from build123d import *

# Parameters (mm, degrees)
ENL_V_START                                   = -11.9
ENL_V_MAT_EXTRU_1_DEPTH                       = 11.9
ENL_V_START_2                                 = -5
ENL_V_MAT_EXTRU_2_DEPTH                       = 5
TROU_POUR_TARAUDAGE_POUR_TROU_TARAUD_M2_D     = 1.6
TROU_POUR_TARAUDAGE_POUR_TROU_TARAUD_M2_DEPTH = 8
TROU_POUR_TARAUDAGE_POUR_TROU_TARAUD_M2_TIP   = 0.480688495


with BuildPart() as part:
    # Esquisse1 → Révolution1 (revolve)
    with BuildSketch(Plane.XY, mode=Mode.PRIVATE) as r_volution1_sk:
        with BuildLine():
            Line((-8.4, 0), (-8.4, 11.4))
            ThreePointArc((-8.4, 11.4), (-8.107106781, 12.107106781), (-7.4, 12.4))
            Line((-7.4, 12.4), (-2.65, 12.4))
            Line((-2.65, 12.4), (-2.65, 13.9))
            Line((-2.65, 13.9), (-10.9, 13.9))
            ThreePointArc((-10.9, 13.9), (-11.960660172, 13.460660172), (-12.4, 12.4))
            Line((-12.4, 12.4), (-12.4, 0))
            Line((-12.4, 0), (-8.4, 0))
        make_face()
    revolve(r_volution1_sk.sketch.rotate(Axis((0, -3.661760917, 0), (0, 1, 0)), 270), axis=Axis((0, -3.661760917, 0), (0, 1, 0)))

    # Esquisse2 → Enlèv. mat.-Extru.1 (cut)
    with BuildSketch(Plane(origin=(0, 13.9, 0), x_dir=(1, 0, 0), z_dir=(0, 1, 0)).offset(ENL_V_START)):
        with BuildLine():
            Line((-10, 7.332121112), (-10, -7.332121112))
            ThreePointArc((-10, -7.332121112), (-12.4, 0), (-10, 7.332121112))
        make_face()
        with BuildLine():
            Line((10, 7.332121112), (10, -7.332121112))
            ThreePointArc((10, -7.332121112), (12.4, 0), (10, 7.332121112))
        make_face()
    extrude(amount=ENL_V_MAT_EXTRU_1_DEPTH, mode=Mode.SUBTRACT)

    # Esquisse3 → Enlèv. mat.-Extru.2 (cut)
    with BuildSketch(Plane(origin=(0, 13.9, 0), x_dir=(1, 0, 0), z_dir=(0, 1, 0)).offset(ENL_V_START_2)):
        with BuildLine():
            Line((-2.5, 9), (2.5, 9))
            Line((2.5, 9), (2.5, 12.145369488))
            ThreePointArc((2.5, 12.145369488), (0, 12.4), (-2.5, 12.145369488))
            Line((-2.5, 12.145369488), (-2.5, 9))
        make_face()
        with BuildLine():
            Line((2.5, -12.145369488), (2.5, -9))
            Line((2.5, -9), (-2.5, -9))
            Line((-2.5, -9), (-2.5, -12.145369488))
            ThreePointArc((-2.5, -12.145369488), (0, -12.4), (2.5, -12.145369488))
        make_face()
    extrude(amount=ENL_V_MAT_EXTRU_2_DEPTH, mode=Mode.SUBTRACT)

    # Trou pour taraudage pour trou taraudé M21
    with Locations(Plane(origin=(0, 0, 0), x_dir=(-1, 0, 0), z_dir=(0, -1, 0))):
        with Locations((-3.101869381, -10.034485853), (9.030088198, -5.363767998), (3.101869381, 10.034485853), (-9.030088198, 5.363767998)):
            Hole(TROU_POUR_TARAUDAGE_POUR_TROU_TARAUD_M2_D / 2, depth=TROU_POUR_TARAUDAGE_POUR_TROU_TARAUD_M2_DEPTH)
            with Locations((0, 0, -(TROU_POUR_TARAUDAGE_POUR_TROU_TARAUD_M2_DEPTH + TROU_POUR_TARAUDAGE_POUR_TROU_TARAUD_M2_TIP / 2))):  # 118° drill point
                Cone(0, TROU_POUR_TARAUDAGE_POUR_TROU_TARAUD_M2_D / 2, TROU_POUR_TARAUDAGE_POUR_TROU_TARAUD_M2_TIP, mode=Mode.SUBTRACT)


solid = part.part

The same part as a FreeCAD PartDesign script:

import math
import FreeCAD as App
import Part
import Sketcher

doc = App.newDocument("Part")
params = doc.addObject("Spreadsheet::Sheet", "Params")
for row, (alias, value) in enumerate([
    ("sketch1_radius", "1 mm"),
    ("sketch1_radius2", "1.5 mm"),
    ("sketch1_width", "4 mm"),
    ("sketch1_height", "11.4 mm"),
    ("sketch1_width2", "4.75 mm"),
    ("revolution_angle", "360 deg"),
    ("sketch2_radius", "12.4 mm"),
    ("pocket1_length", "11.9 mm"),
    ("sketch3_radius", "12.4 mm"),
    ("sketch3_width", "5 mm"),
    ("pocket2_length", "5 mm"),
    ("sketch4_diameter", "1.6 mm"),
    ("hole_diameter", "1.6 mm"),
    ("hole_depth", "8 mm"),
], start=1):
    params.set(f"A{row}", alias)
    params.set(f"B{row}", "=" + value)
    params.setAlias(f"B{row}", alias)

body = doc.addObject("PartDesign::Body", "Body")

# Sketch on XY plane
sketch1 = body.newObject("Sketcher::SketchObject", "Sketch")
sketch1.AttachmentSupport = (doc.getObject("XY_Plane"), [""])
sketch1.MapMode = "FlatFace"
sketch1.addGeometry(Part.LineSegment(App.Vector(-8.4, 0, 0), App.Vector(-8.4, 11.4, 0)), False)
sketch1.addGeometry(Part.ArcOfCircle(Part.Circle(App.Vector(-7.4, 11.4, 0), App.Vector(0, 0, 1), 1), math.radians(90), math.radians(180)), False)
sketch1.addGeometry(Part.LineSegment(App.Vector(-7.4, 12.4, 0), App.Vector(-2.6, 12.4, 0)), False)
sketch1.addGeometry(Part.LineSegment(App.Vector(-2.6, 12.4, 0), App.Vector(-2.6, 13.9, 0)), False)
sketch1.addGeometry(Part.LineSegment(App.Vector(-2.6, 13.9, 0), App.Vector(-10.9, 13.9, 0)), False)
sketch1.addGeometry(Part.ArcOfCircle(Part.Circle(App.Vector(-10.9, 12.4, 0), App.Vector(0, 0, 1), 1.5), math.radians(90), math.radians(180)), False)
sketch1.addGeometry(Part.LineSegment(App.Vector(-12.4, 12.4, 0), App.Vector(-12.4, 0, 0)), False)
sketch1.addGeometry(Part.LineSegment(App.Vector(-12.4, 0, 0), App.Vector(-8.4, 0, 0)), False)
sketch1.addConstraint(Sketcher.Constraint("Tangent", 0, 2, 1, 2))
sketch1.addConstraint(Sketcher.Constraint("Tangent", 1, 1, 2, 1))
sketch1.addConstraint(Sketcher.Constraint("Coincident", 2, 2, 3, 1))
sketch1.addConstraint(Sketcher.Constraint("Coincident", 3, 2, 4, 1))
sketch1.addConstraint(Sketcher.Constraint("Tangent", 4, 2, 5, 1))
sketch1.addConstraint(Sketcher.Constraint("Tangent", 5, 2, 6, 1))
sketch1.addConstraint(Sketcher.Constraint("Coincident", 6, 2, 7, 1))
sketch1.addConstraint(Sketcher.Constraint("Coincident", 7, 2, 0, 1))
sketch1.addConstraint(Sketcher.Constraint("Vertical", 0))
sketch1.addConstraint(Sketcher.Constraint("Horizontal", 2))
sketch1.addConstraint(Sketcher.Constraint("Vertical", 3))
sketch1.addConstraint(Sketcher.Constraint("Horizontal", 4))
sketch1.addConstraint(Sketcher.Constraint("Vertical", 6))
sketch1.addConstraint(Sketcher.Constraint("Horizontal", 7))
sketch1.addConstraint(Sketcher.Constraint("PointOnObject", 6, 2, -1))
sketch1.addConstraint(Sketcher.Constraint("Horizontal", 5, 3, 1, 1))
sketch1.addConstraint(Sketcher.Constraint("Radius", 1, 1.0))
sketch1.addConstraint(Sketcher.Constraint("Radius", 5, 1.5))
sketch1.addConstraint(Sketcher.Constraint("DistanceX", 7, 1, 7, 2, 4.0))
sketch1.addConstraint(Sketcher.Constraint("DistanceY", 0, 1, 0, 2, 11.4))
sketch1.addConstraint(Sketcher.Constraint("DistanceX", 2, 1, 2, 2, 4.75))
sketch1.addConstraint(Sketcher.Constraint("DistanceX", 1, 3, -1, 1, 7.4))
sketch1.setExpression("Constraints[16]", "Params.sketch1_radius")
sketch1.setExpression("Constraints[17]", "Params.sketch1_radius2")
sketch1.setExpression("Constraints[18]", "Params.sketch1_width")
sketch1.setExpression("Constraints[19]", "Params.sketch1_height")
sketch1.setExpression("Constraints[20]", "Params.sketch1_width2")
revolution = body.newObject("PartDesign::Revolution", "Revolution")
revolution.Profile = sketch1
revolution.ReferenceAxis = (sketch1, ["V_Axis"])
revolution.setExpression("Angle", "Params.revolution_angle")

# Sketch on XZ plane
sketch2 = body.newObject("Sketcher::SketchObject", "Sketch001")
sketch2.AttachmentSupport = (doc.getObject("XZ_Plane"), [""])
sketch2.MapMode = "FlatFace"
sketch2.AttachmentOffset = App.Placement(App.Vector(0, 0, -2), App.Rotation())
sketch2.addGeometry(Part.LineSegment(App.Vector(-10, 7, 0), App.Vector(-10, -7, 0)), False)
sketch2.addGeometry(Part.ArcOfCircle(Part.Circle(App.Vector(0, 0, 0), App.Vector(0, 0, 1), 12), math.radians(144), math.radians(216)), False)
sketch2.addGeometry(Part.LineSegment(App.Vector(10, -7, 0), App.Vector(10, 7, 0)), False)
sketch2.addGeometry(Part.ArcOfCircle(Part.Circle(App.Vector(0, 0, 0), App.Vector(0, 0, 1), 12), math.radians(-36), math.radians(36)), False)
sketch2.addConstraint(Sketcher.Constraint("Coincident", 0, 1, 1, 1))
sketch2.addConstraint(Sketcher.Constraint("Coincident", 1, 2, 0, 2))
sketch2.addConstraint(Sketcher.Constraint("Coincident", 2, 1, 3, 1))
sketch2.addConstraint(Sketcher.Constraint("Coincident", 3, 2, 2, 2))
sketch2.addConstraint(Sketcher.Constraint("Vertical", 0))
sketch2.addConstraint(Sketcher.Constraint("Vertical", 2))
sketch2.addConstraint(Sketcher.Constraint("Coincident", 1, 3, -1, 1))
sketch2.addConstraint(Sketcher.Constraint("Coincident", 3, 3, -1, 1))
sketch2.addConstraint(Sketcher.Constraint("Equal", 1, 3))
sketch2.addConstraint(Sketcher.Constraint("Horizontal", 1, 2, 2, 1))
sketch2.addConstraint(Sketcher.Constraint("Radius", 1, 12.4))
sketch2.addConstraint(Sketcher.Constraint("DistanceX", 0, 1, -1, 1, 10.0))
sketch2.setExpression("Constraints[10]", "Params.sketch2_radius")
pocket1 = body.newObject("PartDesign::Pocket", "Pocket")
pocket1.Profile = sketch2
pocket1.setExpression("Length", "Params.pocket1_length")

# Sketch on XZ plane
sketch3 = body.newObject("Sketcher::SketchObject", "Sketch002")
sketch3.AttachmentSupport = (doc.getObject("XZ_Plane"), [""])
sketch3.MapMode = "FlatFace"
sketch3.AttachmentOffset = App.Placement(App.Vector(0, 0, -8.9), App.Rotation())
sketch3.addGeometry(Part.LineSegment(App.Vector(-2.5, -9, 0), App.Vector(2.5, -9, 0)), False)
sketch3.addGeometry(Part.LineSegment(App.Vector(2.5, -9, 0), App.Vector(2.5, -12.1, 0)), False)
sketch3.addGeometry(Part.ArcOfCircle(Part.Circle(App.Vector(0, 0, 0), App.Vector(0, 0, 1), 12.4), math.radians(-102), math.radians(-78)), False)
sketch3.addGeometry(Part.LineSegment(App.Vector(-2.5, -12.1, 0), App.Vector(-2.5, -9, 0)), False)
sketch3.addGeometry(Part.LineSegment(App.Vector(2.5, 12.1, 0), App.Vector(2.5, 9, 0)), False)
sketch3.addGeometry(Part.LineSegment(App.Vector(2.5, 9, 0), App.Vector(-2.5, 9, 0)), False)
sketch3.addGeometry(Part.LineSegment(App.Vector(-2.5, 9, 0), App.Vector(-2.5, 12.1, 0)), False)
sketch3.addGeometry(Part.ArcOfCircle(Part.Circle(App.Vector(0, 0, 0), App.Vector(0, 0, 1), 12.4), math.radians(78), math.radians(102)), False)
sketch3.addConstraint(Sketcher.Constraint("Coincident", 0, 2, 1, 1))
sketch3.addConstraint(Sketcher.Constraint("Coincident", 1, 2, 2, 2))
sketch3.addConstraint(Sketcher.Constraint("Coincident", 2, 1, 3, 1))
sketch3.addConstraint(Sketcher.Constraint("Coincident", 3, 2, 0, 1))
sketch3.addConstraint(Sketcher.Constraint("Coincident", 4, 2, 5, 1))
sketch3.addConstraint(Sketcher.Constraint("Coincident", 5, 2, 6, 1))
sketch3.addConstraint(Sketcher.Constraint("Coincident", 6, 2, 7, 2))
sketch3.addConstraint(Sketcher.Constraint("Coincident", 7, 1, 4, 1))
sketch3.addConstraint(Sketcher.Constraint("Horizontal", 0))
sketch3.addConstraint(Sketcher.Constraint("Vertical", 1))
sketch3.addConstraint(Sketcher.Constraint("Vertical", 3))
sketch3.addConstraint(Sketcher.Constraint("Vertical", 4))
sketch3.addConstraint(Sketcher.Constraint("Horizontal", 5))
sketch3.addConstraint(Sketcher.Constraint("Vertical", 6))
sketch3.addConstraint(Sketcher.Constraint("Coincident", 2, 3, -1, 1))
sketch3.addConstraint(Sketcher.Constraint("Coincident", 7, 3, -1, 1))
sketch3.addConstraint(Sketcher.Constraint("Equal", 2, 7))
sketch3.addConstraint(Sketcher.Constraint("Symmetric", 3, 2, 4, 2, -1, 1))
sketch3.addConstraint(Sketcher.Constraint("Horizontal", 1, 2, 2, 1))
sketch3.addConstraint(Sketcher.Constraint("Horizontal", 6, 2, 7, 1))
sketch3.addConstraint(Sketcher.Constraint("Radius", 2, 12.4))
sketch3.addConstraint(Sketcher.Constraint("DistanceX", 0, 1, 0, 2, 5.0))
sketch3.addConstraint(Sketcher.Constraint("DistanceY", 0, 2, -1, 1, 9.0))
sketch3.setExpression("Constraints[20]", "Params.sketch3_radius")
sketch3.setExpression("Constraints[21]", "Params.sketch3_width")
pocket2 = body.newObject("PartDesign::Pocket", "Pocket001")
pocket2.Profile = sketch3
pocket2.setExpression("Length", "Params.pocket2_length")

# Sketch on XZ plane
sketch4 = body.newObject("Sketcher::SketchObject", "Sketch003")
sketch4.AttachmentSupport = (doc.getObject("XZ_Plane"), [""])
sketch4.MapMode = "FlatFace"
sketch4.addGeometry(Part.Circle(App.Vector(3.1, 10, 0), App.Vector(0, 0, 1), 0.8), False)
sketch4.addGeometry(Part.Circle(App.Vector(-9, 5.4, 0), App.Vector(0, 0, 1), 0.8), False)
sketch4.addGeometry(Part.Circle(App.Vector(-3.1, -10, 0), App.Vector(0, 0, 1), 0.8), False)
sketch4.addGeometry(Part.Circle(App.Vector(9, -5.4, 0), App.Vector(0, 0, 1), 0.8), False)
sketch4.addConstraint(Sketcher.Constraint("Equal", 0, 1))
sketch4.addConstraint(Sketcher.Constraint("Equal", 1, 2))
sketch4.addConstraint(Sketcher.Constraint("Equal", 2, 3))
sketch4.addConstraint(Sketcher.Constraint("Symmetric", 0, 3, 2, 3, -1, 1))
sketch4.addConstraint(Sketcher.Constraint("Symmetric", 1, 3, 3, 3, -1, 1))
sketch4.addConstraint(Sketcher.Constraint("Diameter", 0, 1.6))
sketch4.addConstraint(Sketcher.Constraint("DistanceX", -1, 1, 0, 3, 3.101869))
sketch4.addConstraint(Sketcher.Constraint("DistanceX", 1, 3, -1, 1, 9.030088))
sketch4.addConstraint(Sketcher.Constraint("DistanceY", 2, 3, 0, 3, 20.068972))
sketch4.addConstraint(Sketcher.Constraint("DistanceY", -1, 1, 1, 3, 5.363768))
sketch4.setExpression("Constraints[5]", "Params.sketch4_diameter")
doc.recompute()
hole = body.newObject("PartDesign::Hole", "Hole")
hole.Profile = sketch4
hole.ThreadType = "None"
hole.setExpression("Diameter", "Params.hole_diameter")
hole.DepthType = "Dimension"
hole.setExpression("Depth", "Params.hole_depth")
hole.DrillPoint = "Angled"
hole.DrillPointAngle = 118

doc.recompute()
